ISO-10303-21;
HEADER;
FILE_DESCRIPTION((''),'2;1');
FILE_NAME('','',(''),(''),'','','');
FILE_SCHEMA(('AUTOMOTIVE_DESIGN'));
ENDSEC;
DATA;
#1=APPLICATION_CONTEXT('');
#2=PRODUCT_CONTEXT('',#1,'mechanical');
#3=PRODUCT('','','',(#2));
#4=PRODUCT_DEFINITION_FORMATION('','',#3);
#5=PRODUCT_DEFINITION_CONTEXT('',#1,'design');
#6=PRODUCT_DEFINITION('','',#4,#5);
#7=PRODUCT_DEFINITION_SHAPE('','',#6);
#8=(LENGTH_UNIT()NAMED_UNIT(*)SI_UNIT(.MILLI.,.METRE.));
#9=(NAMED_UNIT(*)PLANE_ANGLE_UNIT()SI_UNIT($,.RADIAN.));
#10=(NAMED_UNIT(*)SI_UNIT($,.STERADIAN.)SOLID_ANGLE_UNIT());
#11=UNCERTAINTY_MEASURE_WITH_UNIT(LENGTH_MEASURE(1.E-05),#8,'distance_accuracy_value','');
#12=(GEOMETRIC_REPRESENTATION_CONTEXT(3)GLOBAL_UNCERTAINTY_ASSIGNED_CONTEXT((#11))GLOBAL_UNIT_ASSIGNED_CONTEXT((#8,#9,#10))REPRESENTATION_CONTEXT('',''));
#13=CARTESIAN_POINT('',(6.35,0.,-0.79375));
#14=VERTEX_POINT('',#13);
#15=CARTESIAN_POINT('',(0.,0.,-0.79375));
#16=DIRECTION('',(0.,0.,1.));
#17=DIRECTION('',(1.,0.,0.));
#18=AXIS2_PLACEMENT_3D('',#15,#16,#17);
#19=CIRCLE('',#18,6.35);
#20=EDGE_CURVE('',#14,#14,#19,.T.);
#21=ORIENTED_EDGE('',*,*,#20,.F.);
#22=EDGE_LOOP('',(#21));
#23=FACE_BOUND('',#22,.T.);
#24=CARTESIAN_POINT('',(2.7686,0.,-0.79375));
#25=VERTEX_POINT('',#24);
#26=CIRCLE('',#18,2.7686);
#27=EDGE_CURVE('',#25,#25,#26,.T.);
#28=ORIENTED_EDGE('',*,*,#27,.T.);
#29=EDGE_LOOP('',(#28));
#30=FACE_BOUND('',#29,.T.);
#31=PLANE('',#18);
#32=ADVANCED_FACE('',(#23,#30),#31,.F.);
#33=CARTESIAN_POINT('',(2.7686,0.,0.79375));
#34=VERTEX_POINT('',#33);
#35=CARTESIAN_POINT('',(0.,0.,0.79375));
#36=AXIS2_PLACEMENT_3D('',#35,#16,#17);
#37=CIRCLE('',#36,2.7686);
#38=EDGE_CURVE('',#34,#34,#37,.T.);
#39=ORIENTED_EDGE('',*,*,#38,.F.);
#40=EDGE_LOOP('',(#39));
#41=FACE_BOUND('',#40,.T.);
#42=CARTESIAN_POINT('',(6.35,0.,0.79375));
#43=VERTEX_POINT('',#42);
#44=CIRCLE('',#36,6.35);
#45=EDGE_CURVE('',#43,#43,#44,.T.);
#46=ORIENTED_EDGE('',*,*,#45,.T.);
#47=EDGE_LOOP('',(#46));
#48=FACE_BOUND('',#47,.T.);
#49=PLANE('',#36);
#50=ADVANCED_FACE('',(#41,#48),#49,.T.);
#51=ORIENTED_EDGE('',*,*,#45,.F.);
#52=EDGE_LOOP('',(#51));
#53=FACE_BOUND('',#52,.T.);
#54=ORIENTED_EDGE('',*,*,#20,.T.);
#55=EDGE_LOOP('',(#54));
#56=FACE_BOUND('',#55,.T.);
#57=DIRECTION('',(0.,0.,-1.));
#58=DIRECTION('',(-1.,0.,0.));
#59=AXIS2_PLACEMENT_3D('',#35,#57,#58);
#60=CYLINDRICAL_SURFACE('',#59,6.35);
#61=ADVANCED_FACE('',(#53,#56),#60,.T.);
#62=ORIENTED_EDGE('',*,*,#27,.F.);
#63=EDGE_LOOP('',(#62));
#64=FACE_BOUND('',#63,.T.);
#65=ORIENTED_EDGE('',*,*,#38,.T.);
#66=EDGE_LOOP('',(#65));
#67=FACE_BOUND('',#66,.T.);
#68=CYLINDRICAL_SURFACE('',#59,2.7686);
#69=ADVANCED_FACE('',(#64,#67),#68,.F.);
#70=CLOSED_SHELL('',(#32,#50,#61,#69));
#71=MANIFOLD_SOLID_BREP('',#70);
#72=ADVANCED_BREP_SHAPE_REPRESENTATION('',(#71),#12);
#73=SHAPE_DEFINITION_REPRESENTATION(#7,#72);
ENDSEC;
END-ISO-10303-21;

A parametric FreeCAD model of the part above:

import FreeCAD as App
import Part
import Sketcher
Q = App.Units.Quantity

doc = App.newDocument("Part")
body = doc.addObject("PartDesign::Body", "Body")

# Sketch on XY plane
sketch1 = body.newObject("Sketcher::SketchObject", "Sketch")
sketch1.AttachmentSupport = (doc.getObject("XY_Plane"), [""])
sketch1.MapMode = "FlatFace"
sketch1.addGeometry([
    Part.Circle(App.Vector(0, 0, 0), App.Vector(0, 0, 1), 6.3),
    Part.Circle(App.Vector(0, 0, 0), App.Vector(0, 0, 1), 2.8),
], False)
sketch1.addConstraint([
    Sketcher.Constraint("Coincident", 0, 3, -1, 1),
    Sketcher.Constraint("Coincident", 1, 3, -1, 1),
    Sketcher.Constraint("Diameter", 0, Q("0.5 in")),
    Sketcher.Constraint("Diameter", 1, Q("0.218 in")),
])
pad1 = body.newObject("PartDesign::Pad", "Pad")
pad1.Profile = sketch1
pad1.Length = Q("0.0625 in")
pad1.Midplane = True

doc.recompute()
